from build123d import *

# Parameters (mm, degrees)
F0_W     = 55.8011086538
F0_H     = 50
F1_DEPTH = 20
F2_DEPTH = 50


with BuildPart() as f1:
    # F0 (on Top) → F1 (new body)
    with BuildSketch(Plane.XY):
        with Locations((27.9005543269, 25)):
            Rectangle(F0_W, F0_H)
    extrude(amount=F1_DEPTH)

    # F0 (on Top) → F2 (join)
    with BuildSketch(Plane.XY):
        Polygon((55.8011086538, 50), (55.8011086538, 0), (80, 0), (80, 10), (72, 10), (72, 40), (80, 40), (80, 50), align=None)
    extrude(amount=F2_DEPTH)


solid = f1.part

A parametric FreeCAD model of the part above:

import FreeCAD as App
import Part
import Sketcher
from FreeCAD import Vector


def add_polygon(sketch, points):
    """Adds a closed chain of lines whose ends are joined by coincident constraints."""
    first, n = sketch.GeometryCount, len(points)
    for a, b in zip(points, points[1:] + points[:1]):
        sketch.addGeometry(Part.LineSegment(App.Vector(*a, 0), App.Vector(*b, 0)), False)
    for i in range(n):
        sketch.addConstraint(Sketcher.Constraint("Coincident", first + i, 2, first + (i + 1) % n, 1))

doc = App.newDocument("Part")
body = doc.addObject("PartDesign::Body", "Body")

sketch1 = body.newObject("Sketcher::SketchObject", "Sketch")
sketch1.AttachmentSupport = (doc.getObject("XY_Plane"), [""])
sketch1.MapMode = "FlatFace"
add_polygon(sketch1, [(0, 50), (0, 0), (56, 0), (56, 50)])
sketch1.addConstraint([
    Sketcher.Constraint("Vertical", 0),
    Sketcher.Constraint("Horizontal", 1),
    Sketcher.Constraint("Vertical", 2),
    Sketcher.Constraint("Horizontal", 3),
    Sketcher.Constraint("Coincident", 0, 2, -1, 1),
    Sketcher.Constraint("DistanceY", 0, 2, 0, 1, 50.0),
    Sketcher.Constraint("DistanceX", 1, 1, 1, 2, 55.801109),
])
pad1 = body.newObject("PartDesign::Pad", "Pad")
pad1.Profile = sketch1
pad1.Length = 20

sketch2 = body.newObject("Sketcher::SketchObject", "Sketch001")
sketch2.AttachmentSupport = (doc.getObject("XY_Plane"), [""])
sketch2.MapMode = "FlatFace"
add_polygon(sketch2, [(56, 50), (56, 0), (80, 0), (80, 10), (72, 10), (72, 40), (80, 40), (80, 50)])
sketch2.addConstraint([
    Sketcher.Constraint("Vertical", 0),
    Sketcher.Constraint("Horizontal", 1),
    Sketcher.Constraint("Vertical", 2),
    Sketcher.Constraint("Horizontal", 3),
    Sketcher.Constraint("Vertical", 4),
    Sketcher.Constraint("Horizontal", 5),
    Sketcher.Constraint("Vertical", 6),
    Sketcher.Constraint("Horizontal", 7),
    Sketcher.Constraint("PointOnObject", 0, 2, -1),
    Sketcher.Constraint("Vertical", 2, 2, 5, 2),
    Sketcher.Constraint("Equal", 2, 6),
    Sketcher.Constraint("DistanceX", 3, 2, 3, 1, 8.0),
    Sketcher.Constraint("DistanceY", 0, 2, 0, 1, 50.0),
    Sketcher.Constraint("DistanceY", 2, 1, 2, 2, 10.0),
    Sketcher.Constraint("DistanceX", -1, 1, 1, 2, 80.0),
    Sketcher.Constraint("DistanceX", 1, 1, 1, 2, 24.198891),
])
pad2 = body.newObject("PartDesign::Pad", "Pad001")
pad2.Profile = sketch2
pad2.Length = 50

doc.recompute()
